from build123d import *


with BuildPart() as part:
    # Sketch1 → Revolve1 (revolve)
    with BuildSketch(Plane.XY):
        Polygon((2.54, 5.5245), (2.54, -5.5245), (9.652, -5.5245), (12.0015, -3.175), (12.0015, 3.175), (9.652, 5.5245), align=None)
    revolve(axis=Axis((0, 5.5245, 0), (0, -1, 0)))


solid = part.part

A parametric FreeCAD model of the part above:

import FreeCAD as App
import Part
import Sketcher

V = App.Vector
Q = App.Units.Quantity


def add_polygon(sketch, points):
    """Adds a closed chain of lines whose ends are joined by coincident constraints."""
    first, n = sketch.GeometryCount, len(points)
    for a, b in zip(points, points[1:] + points[:1]):
        sketch.addGeometry(Part.LineSegment(App.Vector(*a, 0), App.Vector(*b, 0)), False)
    for i in range(n):
        sketch.addConstraint(Sketcher.Constraint("Coincident", first + i, 2, first + (i + 1) % n, 1))

doc = App.newDocument("Part")
body = doc.addObject("PartDesign::Body", "Body")

sketch1 = body.newObject("Sketcher::SketchObject", "Sketch")
sketch1.AttachmentSupport = (doc.getObject("XY_Plane"), [""])
sketch1.MapMode = "FlatFace"
add_polygon(sketch1, [(2.54, 5.5245), (2.54, -5.5245), (9.652, -5.5245), (12.0015, -3.175), (12.0015, 3.175), (9.652, 5.5245)])
sketch1.addConstraint(Sketcher.Constraint("Vertical", 0))
sketch1.addConstraint(Sketcher.Constraint("Horizontal", 1))
sketch1.addConstraint(Sketcher.Constraint("Vertical", 3))
sketch1.addConstraint(Sketcher.Constraint("Horizontal", 5))
sketch1.addConstraint(Sketcher.Constraint("Symmetric", 1, 2, 4, 2, -1))
sketch1.addConstraint(Sketcher.Constraint("Perpendicular", 2, 4))
sketch1.addConstraint(Sketcher.Constraint("Equal", 2, 4))
sketch1.addConstraint(Sketcher.Constraint("DistanceX", 1, 1, 1, 2, Q("0.28 in")))
sketch1.addConstraint(Sketcher.Constraint("DistanceY", 3, 1, 3, 2, Q("0.25 in")))
sketch1.addConstraint(Sketcher.Constraint("DistanceX", -1, 1, 0, 2, Q("0.1 in")))
sketch1.addConstraint(Sketcher.Constraint("DistanceY", 0, 2, 0, 1, Q("0.435 in")))
revolution = body.newObject("PartDesign::Revolution", "Revolution")
revolution.Profile = sketch1
revolution.ReferenceAxis = (sketch1, ["V_Axis"])
revolution.Angle = 360

doc.recompute()
